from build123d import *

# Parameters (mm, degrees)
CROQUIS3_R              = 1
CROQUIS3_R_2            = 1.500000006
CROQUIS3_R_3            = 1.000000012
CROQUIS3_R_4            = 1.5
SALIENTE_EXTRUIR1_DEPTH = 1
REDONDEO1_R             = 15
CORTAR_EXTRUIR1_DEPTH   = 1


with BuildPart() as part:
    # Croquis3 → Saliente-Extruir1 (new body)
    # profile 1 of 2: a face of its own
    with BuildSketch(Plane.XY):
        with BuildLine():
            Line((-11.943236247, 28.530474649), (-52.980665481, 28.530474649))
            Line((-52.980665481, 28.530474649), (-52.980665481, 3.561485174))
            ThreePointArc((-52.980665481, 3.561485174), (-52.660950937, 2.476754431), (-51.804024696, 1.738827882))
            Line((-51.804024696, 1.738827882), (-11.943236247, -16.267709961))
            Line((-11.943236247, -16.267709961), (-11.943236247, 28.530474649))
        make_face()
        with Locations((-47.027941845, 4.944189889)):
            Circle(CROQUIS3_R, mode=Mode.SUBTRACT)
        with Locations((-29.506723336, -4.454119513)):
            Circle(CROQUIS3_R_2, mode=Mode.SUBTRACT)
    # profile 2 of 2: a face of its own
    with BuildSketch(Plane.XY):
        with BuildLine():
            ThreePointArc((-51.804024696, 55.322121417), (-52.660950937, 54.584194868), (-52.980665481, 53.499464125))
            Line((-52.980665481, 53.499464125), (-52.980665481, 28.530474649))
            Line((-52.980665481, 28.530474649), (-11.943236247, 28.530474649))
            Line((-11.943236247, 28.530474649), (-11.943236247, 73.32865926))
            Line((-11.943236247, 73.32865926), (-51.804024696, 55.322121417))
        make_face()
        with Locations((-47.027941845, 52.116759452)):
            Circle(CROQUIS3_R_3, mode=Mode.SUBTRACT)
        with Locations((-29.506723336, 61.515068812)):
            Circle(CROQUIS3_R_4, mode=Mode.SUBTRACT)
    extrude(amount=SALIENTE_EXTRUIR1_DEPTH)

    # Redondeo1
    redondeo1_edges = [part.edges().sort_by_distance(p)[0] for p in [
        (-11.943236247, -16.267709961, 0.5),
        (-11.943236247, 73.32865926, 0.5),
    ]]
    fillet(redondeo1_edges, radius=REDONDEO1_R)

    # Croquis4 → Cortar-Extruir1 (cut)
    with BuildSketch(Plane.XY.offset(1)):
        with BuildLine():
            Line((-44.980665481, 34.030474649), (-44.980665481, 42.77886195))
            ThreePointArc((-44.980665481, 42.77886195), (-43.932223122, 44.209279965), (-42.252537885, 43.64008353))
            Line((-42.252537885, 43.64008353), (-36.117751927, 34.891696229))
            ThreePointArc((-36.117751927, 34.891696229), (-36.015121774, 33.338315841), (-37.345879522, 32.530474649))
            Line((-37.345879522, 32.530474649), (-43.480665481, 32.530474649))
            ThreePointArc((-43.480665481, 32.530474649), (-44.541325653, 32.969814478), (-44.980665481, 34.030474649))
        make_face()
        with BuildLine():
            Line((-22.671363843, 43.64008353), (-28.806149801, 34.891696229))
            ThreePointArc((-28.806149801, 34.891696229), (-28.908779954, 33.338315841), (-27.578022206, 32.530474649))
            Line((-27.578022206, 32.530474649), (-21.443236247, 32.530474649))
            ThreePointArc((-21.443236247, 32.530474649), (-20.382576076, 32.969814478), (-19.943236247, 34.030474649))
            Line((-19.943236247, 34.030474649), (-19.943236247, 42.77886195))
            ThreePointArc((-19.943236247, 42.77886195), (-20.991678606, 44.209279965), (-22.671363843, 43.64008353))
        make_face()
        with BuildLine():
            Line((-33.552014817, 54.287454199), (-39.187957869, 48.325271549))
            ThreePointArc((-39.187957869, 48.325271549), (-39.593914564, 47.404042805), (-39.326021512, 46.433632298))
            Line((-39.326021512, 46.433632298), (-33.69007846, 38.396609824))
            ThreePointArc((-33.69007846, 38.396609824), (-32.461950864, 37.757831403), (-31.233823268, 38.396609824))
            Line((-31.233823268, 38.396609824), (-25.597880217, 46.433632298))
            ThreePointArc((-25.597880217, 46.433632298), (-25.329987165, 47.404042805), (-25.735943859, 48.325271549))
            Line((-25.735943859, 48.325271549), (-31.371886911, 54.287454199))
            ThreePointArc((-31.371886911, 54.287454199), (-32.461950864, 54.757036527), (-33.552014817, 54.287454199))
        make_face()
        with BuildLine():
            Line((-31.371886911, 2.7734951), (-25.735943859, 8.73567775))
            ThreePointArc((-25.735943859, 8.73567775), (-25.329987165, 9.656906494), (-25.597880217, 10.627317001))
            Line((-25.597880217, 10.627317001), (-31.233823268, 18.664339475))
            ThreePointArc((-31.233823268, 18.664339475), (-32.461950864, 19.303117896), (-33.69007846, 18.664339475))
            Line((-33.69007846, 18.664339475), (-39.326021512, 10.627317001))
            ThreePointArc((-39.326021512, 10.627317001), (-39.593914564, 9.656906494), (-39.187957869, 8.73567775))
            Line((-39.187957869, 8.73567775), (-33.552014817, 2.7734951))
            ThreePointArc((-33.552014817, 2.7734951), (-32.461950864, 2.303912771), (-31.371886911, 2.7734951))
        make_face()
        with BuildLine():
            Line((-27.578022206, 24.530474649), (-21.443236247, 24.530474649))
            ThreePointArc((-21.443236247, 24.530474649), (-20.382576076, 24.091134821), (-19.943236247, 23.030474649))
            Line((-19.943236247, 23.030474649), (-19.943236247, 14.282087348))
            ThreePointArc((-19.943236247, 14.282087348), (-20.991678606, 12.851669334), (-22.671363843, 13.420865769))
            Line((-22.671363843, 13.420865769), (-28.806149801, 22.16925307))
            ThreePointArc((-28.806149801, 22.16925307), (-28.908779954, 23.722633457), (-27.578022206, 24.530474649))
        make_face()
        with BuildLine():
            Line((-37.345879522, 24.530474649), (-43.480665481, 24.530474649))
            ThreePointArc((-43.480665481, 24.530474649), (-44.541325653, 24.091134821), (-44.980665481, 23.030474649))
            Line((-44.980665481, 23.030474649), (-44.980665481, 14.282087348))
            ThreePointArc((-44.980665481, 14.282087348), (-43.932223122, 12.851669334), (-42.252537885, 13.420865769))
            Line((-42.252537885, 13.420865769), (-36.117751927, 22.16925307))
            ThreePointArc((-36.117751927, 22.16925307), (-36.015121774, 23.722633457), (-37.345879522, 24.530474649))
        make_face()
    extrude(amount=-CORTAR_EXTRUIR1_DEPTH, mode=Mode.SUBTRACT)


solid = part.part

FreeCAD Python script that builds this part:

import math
import FreeCAD as App
import Part
import Sketcher
from FreeCAD import Vector
Q = App.Units.Quantity


def edges_at(feature, points):
    """Names of the edges that pass closest to the given points."""
    edges = feature.Shape.Edges
    near = lambda p: min(range(len(edges)), key=lambda i: edges[i].distToShape(Part.Vertex(*p))[0])
    return sorted({f"Edge{near(p) + 1}" for p in points})

doc = App.newDocument("Part")
params = doc.addObject("Spreadsheet::Sheet", "Params")
for row, (alias, value) in enumerate([
    ("sketch1_diameter", "3 mm"),
    ("sketch1_diameter2", "2 mm"),
    ("sketch1_diameter3", "3 mm"),
    ("sketch1_diameter4", "2 mm"),
    ("sketch1_radius", "2 mm"),
    ("pad1_length", "1 mm"),
    ("fillet_radius", "15 mm"),
    ("sketch2_radius", "1.5 mm"),
    ("pocket1_length", "1 mm"),
], start=1):
    params.set(f"A{row}", alias)
    params.set(f"B{row}", "=" + value)
    params.setAlias(f"B{row}", alias)

body = doc.addObject("PartDesign::Body", "Body")

# Sketch on XY plane
sketch1 = body.newObject("Sketcher::SketchObject", "Sketch")
sketch1.AttachmentSupport = (doc.getObject("XY_Plane"), [""])
sketch1.MapMode = "FlatFace"
sketch1.addGeometry(Part.LineSegment(Vector(-11.943236, -16.26771, 0), Vector(-11.943236, 73.328659, 0)), False)
sketch1.addGeometry(Part.LineSegment(Vector(-11.943236, 73.328659, 0), Vector(-51.804025, 55.322121, 0)), False)
sketch1.addGeometry(Part.ArcOfCircle(Part.Circle(Vector(-50.980665, 53.499464, 0), Vector(0, 0, 1), 2), math.radians(114.310389), math.radians(180)), False)
sketch1.addGeometry(Part.LineSegment(Vector(-52.980665, 53.499464, 0), Vector(-52.980665, 3.561485, 0)), False)
sketch1.addGeometry(Part.ArcOfCircle(Part.Circle(Vector(-50.980665, 3.561485, 0), Vector(0, 0, 1), 2), math.radians(-180), math.radians(-114.310389)), False)
sketch1.addGeometry(Part.LineSegment(Vector(-51.804025, 1.738828, 0), Vector(-11.943236, -16.26771, 0)), False)
sketch1.addGeometry(Part.Circle(Vector(-29.506723, -4.45412, 0), Vector(0, 0, 1), 1.5), False)
sketch1.addGeometry(Part.Circle(Vector(-47.027942, 4.94419, 0), Vector(0, 0, 1), 1), False)
sketch1.addGeometry(Part.Circle(Vector(-29.506723, 61.515069, 0), Vector(0, 0, 1), 1.5), False)
sketch1.addGeometry(Part.Circle(Vector(-47.027942, 52.116759, 0), Vector(0, 0, 1), 1), False)
sketch1.addConstraint(Sketcher.Constraint("Coincident", 0, 2, 1, 1))
sketch1.addConstraint(Sketcher.Constraint("Coincident", 1, 2, 2, 1))
sketch1.addConstraint(Sketcher.Constraint("Coincident", 2, 2, 3, 1))
sketch1.addConstraint(Sketcher.Constraint("Coincident", 3, 2, 4, 1))
sketch1.addConstraint(Sketcher.Constraint("Coincident", 4, 2, 5, 1))
sketch1.addConstraint(Sketcher.Constraint("Coincident", 5, 2, 0, 1))
sketch1.addConstraint(Sketcher.Constraint("Vertical", 0))
sketch1.addConstraint(Sketcher.Constraint("Vertical", 3))
sketch1.addConstraint(Sketcher.Constraint("Diameter", 6, Q("3 mm")))
sketch1.addConstraint(Sketcher.Constraint("Diameter", 7, Q("2 mm")))
sketch1.addConstraint(Sketcher.Constraint("Diameter", 8, Q("3 mm")))
sketch1.addConstraint(Sketcher.Constraint("Diameter", 9, Q("2 mm")))
sketch1.addConstraint(Sketcher.Constraint("Radius", 2, Q("2 mm")))
sketch1.addConstraint(Sketcher.Constraint("Radius", 4, Q("2 mm")))
sketch1.addConstraint(Sketcher.Constraint("DistanceY", 0, 1, 0, 2, Q("89.596369 mm")))
sketch1.addConstraint(Sketcher.Constraint("DistanceY", 3, 2, 3, 1, Q("49.937979 mm")))
sketch1.addConstraint(Sketcher.Constraint("DistanceY", 9, 3, 0, 2, Q("21.2119 mm")))
sketch1.addConstraint(Sketcher.Constraint("DistanceX", 1, 2, 8, 3, Q("22.297301 mm")))
sketch1.addConstraint(Sketcher.Constraint("DistanceX", 4, 2, 6, 3, Q("22.297301 mm")))
sketch1.addConstraint(Sketcher.Constraint("DistanceY", 5, 2, 7, 3, Q("21.2119 mm")))
sketch1.addConstraint(Sketcher.Constraint("DistanceY", 6, 3, -1, 1, Q("4.45412 mm")))
sketch1.addConstraint(Sketcher.Constraint("DistanceX", 7, 3, -1, 1, Q("47.027942 mm")))
sketch1.addConstraint(Sketcher.Constraint("DistanceY", -1, 1, 7, 3, Q("4.94419 mm")))
sketch1.addConstraint(Sketcher.Constraint("DistanceY", -1, 1, 8, 3, Q("61.515069 mm")))
sketch1.addConstraint(Sketcher.Constraint("DistanceX", 9, 3, -1, 1, Q("47.027942 mm")))
sketch1.addConstraint(Sketcher.Constraint("DistanceY", -1, 1, 1, 2, Q("55.322121 mm")))
sketch1.addConstraint(Sketcher.Constraint("DistanceY", 4, 3, 2, 3, Q("49.937979 mm")))
sketch1.addConstraint(Sketcher.Constraint("DistanceX", 7, 3, 6, 3, Q("17.521219 mm")))
sketch1.addConstraint(Sketcher.Constraint("DistanceX", 7, 3, 8, 3, Q("17.521219 mm")))
sketch1.addConstraint(Sketcher.Constraint("DistanceX", 2, 3, 0, 2, Q("39.037429 mm")))
sketch1.addConstraint(Sketcher.Constraint("DistanceX", 1, 2, 2, 3, Q("0.823359 mm")))
sketch1.addConstraint(Sketcher.Constraint("DistanceY", -1, 1, 2, 2, Q("53.499464 mm")))
sketch1.setExpression("Constraints[8]", "Params.sketch1_diameter")
sketch1.setExpression("Constraints[9]", "Params.sketch1_diameter2")
sketch1.setExpression("Constraints[10]", "Params.sketch1_diameter3")
sketch1.setExpression("Constraints[11]", "Params.sketch1_diameter4")
sketch1.setExpression("Constraints[12]", "Params.sketch1_radius")
pad1 = body.newObject("PartDesign::Pad", "Pad")
pad1.Profile = sketch1
pad1.setExpression("Length", "Params.pad1_length")
doc.recompute()

fillet = body.newObject("PartDesign::Fillet", "Fillet")
fillet.Base = (pad1, edges_at(pad1, [(-11.943, -16.268, 0.5), (-11.943, 73.329, 0.5)]))
fillet.setExpression("Radius", "Params.fillet_radius")

# Sketch on XY plane
sketch2 = body.newObject("Sketcher::SketchObject", "Sketch001")
sketch2.AttachmentSupport = (doc.getObject("XY_Plane"), [""])
sketch2.MapMode = "FlatFace"
sketch2.AttachmentOffset = App.Placement(Vector(0, 0, 1), App.Rotation())
sketch2.addGeometry(Part.LineSegment(Vector(-44.980665, 42.778862, 0), Vector(-44.980665, 34.030475, 0)), False)
sketch2.addGeometry(Part.ArcOfCircle(Part.Circle(Vector(-43.480665, 34.030475, 0), Vector(0, 0, 1), 1.5), math.radians(-180), math.radians(-90)), False)
sketch2.addGeometry(Part.LineSegment(Vector(-43.480665, 32.530475, 0), Vector(-37.34588, 32.530475, 0)), False)
sketch2.addGeometry(Part.ArcOfCircle(Part.Circle(Vector(-37.34588, 34.030475, 0), Vector(0, 0, 1), 1.5), math.radians(-90), math.radians(35.039968)), False)
sketch2.addGeometry(Part.LineSegment(Vector(-36.117752, 34.891696, 0), Vector(-42.252538, 43.640084, 0)), False)
sketch2.addGeometry(Part.ArcOfCircle(Part.Circle(Vector(-43.480665, 42.778862, 0), Vector(0, 0, 1), 1.5), math.radians(35.039968), math.radians(180)), False)
sketch2.addGeometry(Part.LineSegment(Vector(-22.671364, 43.640084, 0), Vector(-28.80615, 34.891696, 0)), False)
sketch2.addGeometry(Part.ArcOfCircle(Part.Circle(Vector(-27.578022, 34.030475, 0), Vector(0, 0, 1), 1.5), math.radians(144.960032), math.radians(270)), False)
sketch2.addGeometry(Part.LineSegment(Vector(-27.578022, 32.530475, 0), Vector(-21.443236, 32.530475, 0)), False)
sketch2.addGeometry(Part.ArcOfCircle(Part.Circle(Vector(-21.443236, 34.030475, 0), Vector(0, 0, 1), 1.5), math.radians(-90), math.radians(0)), False)
sketch2.addGeometry(Part.LineSegment(Vector(-19.943236, 34.030475, 0), Vector(-19.943236, 42.778862, 0)), False)
sketch2.addGeometry(Part.ArcOfCircle(Part.Circle(Vector(-21.443236, 42.778862, 0), Vector(0, 0, 1), 1.5), math.radians(0), math.radians(144.960032)), False)
sketch2.addGeometry(Part.LineSegment(Vector(-33.552015, 54.287454, 0), Vector(-39.187958, 48.325272, 0)), False)
sketch2.addGeometry(Part.ArcOfCircle(Part.Circle(Vector(-38.097894, 47.294854, 0), Vector(0, 0, 1), 1.5), math.radians(136.611228), math.radians(215.039968)), False)
sketch2.addGeometry(Part.LineSegment(Vector(-39.326022, 46.433632, 0), Vector(-33.690078, 38.39661, 0)), False)
sketch2.addGeometry(Part.ArcOfCircle(Part.Circle(Vector(-32.461951, 39.257831, 0), Vector(0, 0, 1), 1.5), math.radians(-144.960032), math.radians(-35.039968)), False)
sketch2.addGeometry(Part.LineSegment(Vector(-31.233823, 38.39661, 0), Vector(-25.59788, 46.433632, 0)), False)
sketch2.addGeometry(Part.ArcOfCircle(Part.Circle(Vector(-26.826008, 47.294854, 0), Vector(0, 0, 1), 1.5), math.radians(-35.039968), math.radians(43.388772)), False)
sketch2.addGeometry(Part.LineSegment(Vector(-25.735944, 48.325272, 0), Vector(-31.371887, 54.287454, 0)), False)
sketch2.addGeometry(Part.ArcOfCircle(Part.Circle(Vector(-32.461951, 53.257037, 0), Vector(0, 0, 1), 1.5), math.radians(43.388772), math.radians(136.611228)), False)
sketch2.addGeometry(Part.LineSegment(Vector(-31.371887, 2.773495, 0), Vector(-25.735944, 8.735678, 0)), False)
sketch2.addGeometry(Part.ArcOfCircle(Part.Circle(Vector(-26.826008, 9.766095, 0), Vector(0, 0, 1), 1.5), math.radians(-43.388772), math.radians(35.039968)), False)
sketch2.addGeometry(Part.LineSegment(Vector(-25.59788, 10.627317, 0), Vector(-31.233823, 18.664339, 0)), False)
sketch2.addGeometry(Part.ArcOfCircle(Part.Circle(Vector(-32.461951, 17.803118, 0), Vector(0, 0, 1), 1.5), math.radians(35.039968), math.radians(144.960032)), False)
sketch2.addGeometry(Part.LineSegment(Vector(-33.690078, 18.664339, 0), Vector(-39.326022, 10.627317, 0)), False)
sketch2.addGeometry(Part.ArcOfCircle(Part.Circle(Vector(-38.097894, 9.766095, 0), Vector(0, 0, 1), 1.5), math.radians(144.960032), math.radians(223.388772)), False)
sketch2.addGeometry(Part.LineSegment(Vector(-39.187958, 8.735678, 0), Vector(-33.552015, 2.773495, 0)), False)
sketch2.addGeometry(Part.ArcOfCircle(Part.Circle(Vector(-32.461951, 3.803913, 0), Vector(0, 0, 1), 1.5), math.radians(-136.611228), math.radians(-43.388772)), False)
sketch2.addGeometry(Part.LineSegment(Vector(-21.443236, 24.530475, 0), Vector(-27.578022, 24.530475, 0)), False)
sketch2.addGeometry(Part.ArcOfCircle(Part.Circle(Vector(-27.578022, 23.030475, 0), Vector(0, 0, 1), 1.5), math.radians(90), math.radians(215.039968)), False)
sketch2.addGeometry(Part.LineSegment(Vector(-28.80615, 22.169253, 0), Vector(-22.671364, 13.420866, 0)), False)
sketch2.addGeometry(Part.ArcOfCircle(Part.Circle(Vector(-21.443236, 14.282087, 0), Vector(0, 0, 1), 1.5), math.radians(-144.960032), math.radians(0)), False)
sketch2.addGeometry(Part.LineSegment(Vector(-19.943236, 14.282087, 0), Vector(-19.943236, 23.030475, 0)), False)
sketch2.addGeometry(Part.ArcOfCircle(Part.Circle(Vector(-21.443236, 23.030475, 0), Vector(0, 0, 1), 1.5), math.radians(0), math.radians(90)), False)
sketch2.addGeometry(Part.LineSegment(Vector(-37.34588, 24.530475, 0), Vector(-43.480665, 24.530475, 0)), False)
sketch2.addGeometry(Part.ArcOfCircle(Part.Circle(Vector(-43.480665, 23.030475, 0), Vector(0, 0, 1), 1.5), math.radians(90), math.radians(180)), False)
sketch2.addGeometry(Part.LineSegment(Vector(-44.980665, 23.030475, 0), Vector(-44.980665, 14.282087, 0)), False)
sketch2.addGeometry(Part.ArcOfCircle(Part.Circle(Vector(-43.480665, 14.282087, 0), Vector(0, 0, 1), 1.5), math.radians(-180), math.radians(-35.039968)), False)
sketch2.addGeometry(Part.LineSegment(Vector(-42.252538, 13.420866, 0), Vector(-36.117752, 22.169253, 0)), False)
sketch2.addGeometry(Part.ArcOfCircle(Part.Circle(Vector(-37.34588, 23.030475, 0), Vector(0, 0, 1), 1.5), math.radians(-35.039968), math.radians(90)), False)
sketch2.addConstraint(Sketcher.Constraint("Tangent", 0, 2, 1, 1))
sketch2.addConstraint(Sketcher.Constraint("Tangent", 1, 2, 2, 1))
sketch2.addConstraint(Sketcher.Constraint("Tangent", 2, 2, 3, 1))
sketch2.addConstraint(Sketcher.Constraint("Tangent", 3, 2, 4, 1))
sketch2.addConstraint(Sketcher.Constraint("Tangent", 4, 2, 5, 1))
sketch2.addConstraint(Sketcher.Constraint("Tangent", 5, 2, 0, 1))
sketch2.addConstraint(Sketcher.Constraint("Tangent", 6, 2, 7, 1))
sketch2.addConstraint(Sketcher.Constraint("Tangent", 7, 2, 8, 1))
sketch2.addConstraint(Sketcher.Constraint("Tangent", 8, 2, 9, 1))
sketch2.addConstraint(Sketcher.Constraint("Tangent", 9, 2, 10, 1))
sketch2.addConstraint(Sketcher.Constraint("Tangent", 10, 2, 11, 1))
sketch2.addConstraint(Sketcher.Constraint("Tangent", 11, 2, 6, 1))
sketch2.addConstraint(Sketcher.Constraint("Tangent", 12, 2, 13, 1))
sketch2.addConstraint(Sketcher.Constraint("Tangent", 13, 2, 14, 1))
sketch2.addConstraint(Sketcher.Constraint("Tangent", 14, 2, 15, 1))
sketch2.addConstraint(Sketcher.Constraint("Tangent", 15, 2, 16, 1))
sketch2.addConstraint(Sketcher.Constraint("Tangent", 16, 2, 17, 1))
sketch2.addConstraint(Sketcher.Constraint("Tangent", 17, 2, 18, 1))
sketch2.addConstraint(Sketcher.Constraint("Tangent", 18, 2, 19, 1))
sketch2.addConstraint(Sketcher.Constraint("Tangent", 19, 2, 12, 1))
sketch2.addConstraint(Sketcher.Constraint("Tangent", 20, 2, 21, 1))
sketch2.addConstraint(Sketcher.Constraint("Tangent", 21, 2, 22, 1))
sketch2.addConstraint(Sketcher.Constraint("Tangent", 22, 2, 23, 1))
sketch2.addConstraint(Sketcher.Constraint("Tangent", 23, 2, 24, 1))
sketch2.addConstraint(Sketcher.Constraint("Tangent", 24, 2, 25, 1))
sketch2.addConstraint(Sketcher.Constraint("Tangent", 25, 2, 26, 1))
sketch2.addConstraint(Sketcher.Constraint("Tangent", 26, 2, 27, 1))
sketch2.addConstraint(Sketcher.Constraint("Tangent", 27, 2, 20, 1))
sketch2.addConstraint(Sketcher.Constraint("Tangent", 28, 2, 29, 1))
sketch2.addConstraint(Sketcher.Constraint("Tangent", 29, 2, 30, 1))
sketch2.addConstraint(Sketcher.Constraint("Tangent", 30, 2, 31, 1))
sketch2.addConstraint(Sketcher.Constraint("Tangent", 31, 2, 32, 1))
sketch2.addConstraint(Sketcher.Constraint("Tangent", 32, 2, 33, 1))
sketch2.addConstraint(Sketcher.Constraint("Tangent", 33, 2, 28, 1))
sketch2.addConstraint(Sketcher.Constraint("Tangent", 34, 2, 35, 1))
sketch2.addConstraint(Sketcher.Constraint("Tangent", 35, 2, 36, 1))
sketch2.addConstraint(Sketcher.Constraint("Tangent", 36, 2, 37, 1))
sketch2.addConstraint(Sketcher.Constraint("Tangent", 37, 2, 38, 1))
sketch2.addConstraint(Sketcher.Constraint("Tangent", 38, 2, 39, 1))
sketch2.addConstraint(Sketcher.Constraint("Tangent", 39, 2, 34, 1))
sketch2.addConstraint(Sketcher.Constraint("Vertical", 0))
sketch2.addConstraint(Sketcher.Constraint("Horizontal", 2))
sketch2.addConstraint(Sketcher.Constraint("Horizontal", 8))
sketch2.addConstraint(Sketcher.Constraint("Vertical", 10))
sketch2.addConstraint(Sketcher.Constraint("Horizontal", 28))
sketch2.addConstraint(Sketcher.Constraint("Vertical", 32))
sketch2.addConstraint(Sketcher.Constraint("Horizontal", 34))
sketch2.addConstraint(Sketcher.Constraint("Vertical", 36))
sketch2.addConstraint(Sketcher.Constraint("Equal", 1, 3))
sketch2.addConstraint(Sketcher.Constraint("Equal", 3, 5))
sketch2.addConstraint(Sketcher.Constraint("Equal", 5, 7))
sketch2.addConstraint(Sketcher.Constraint("Equal", 7, 9))
sketch2.addConstraint(Sketcher.Constraint("Equal", 9, 11))
sketch2.addConstraint(Sketcher.Constraint("Equal", 11, 13))
sketch2.addConstraint(Sketcher.Constraint("Equal", 13, 15))
sketch2.addConstraint(Sketcher.Constraint("Equal", 15, 17))
sketch2.addConstraint(Sketcher.Constraint("Equal", 17, 19))
sketch2.addConstraint(Sketcher.Constraint("Equal", 19, 21))
sketch2.addConstraint(Sketcher.Constraint("Equal", 21, 23))
sketch2.addConstraint(Sketcher.Constraint("Equal", 23, 25))
sketch2.addConstraint(Sketcher.Constraint("Equal", 25, 27))
sketch2.addConstraint(Sketcher.Constraint("Equal", 27, 29))
sketch2.addConstraint(Sketcher.Constraint("Equal", 29, 31))
sketch2.addConstraint(Sketcher.Constraint("Equal", 31, 33))
sketch2.addConstraint(Sketcher.Constraint("Equal", 33, 35))
sketch2.addConstraint(Sketcher.Constraint("Equal", 35, 37))
sketch2.addConstraint(Sketcher.Constraint("Equal", 37, 39))
sketch2.addConstraint(Sketcher.Constraint("Parallel", 4, 14))
sketch2.addConstraint(Sketcher.Constraint("Parallel", 6, 16))
sketch2.addConstraint(Sketcher.Constraint("Parallel", 12, 20))
sketch2.addConstraint(Sketcher.Constraint("Parallel", 14, 22))
sketch2.addConstraint(Sketcher.Constraint("Parallel", 16, 24))
sketch2.addConstraint(Sketcher.Constraint("Parallel", 18, 26))
sketch2.addConstraint(Sketcher.Constraint("Parallel", 22, 30))
sketch2.addConstraint(Sketcher.Constraint("Parallel", 24, 38))
sketch2.addConstraint(Sketcher.Constraint("Horizontal", 3, 3, 7, 3))
sketch2.addConstraint(Sketcher.Constraint("Horizontal", 5, 3, 11, 3))
sketch2.addConstraint(Sketcher.Constraint("Horizontal", 13, 3, 17, 3))
sketch2.addConstraint(Sketcher.Constraint("Horizontal", 21, 3, 25, 3))
sketch2.addConstraint(Sketcher.Constraint("Horizontal", 33, 3, 35, 3))
sketch2.addConstraint(Sketcher.Constraint("Horizontal", 31, 3, 37, 3))
sketch2.addConstraint(Sketcher.Constraint("Horizontal", 3, 2, 6, 2))
sketch2.addConstraint(Sketcher.Constraint("Horizontal", 12, 2, 17, 2))
sketch2.addConstraint(Sketcher.Constraint("Vertical", 17, 3, 21, 3))
sketch2.addConstraint(Sketcher.Constraint("Vertical", 19, 3, 23, 3))
sketch2.addConstraint(Sketcher.Constraint("Vertical", 7, 3, 29, 3))
sketch2.addConstraint(Sketcher.Constraint("Vertical", 11, 3, 31, 3))
sketch2.addConstraint(Sketcher.Constraint("Vertical", 5, 3, 35, 3))
sketch2.addConstraint(Sketcher.Constraint("Radius", 1, Q("1.5 mm")))
sketch2.addConstraint(Sketcher.Constraint("DistanceY", 29, 3, 7, 3, Q("11 mm")))
sketch2.addConstraint(Sketcher.Constraint("DistanceX", 3, 2, 15, 3, Q("3.655801 mm")))
sketch2.addConstraint(Sketcher.Constraint("DistanceX", 15, 3, 6, 2, Q("3.655801 mm")))
sketch2.addConstraint(Sketcher.Constraint("DistanceY", 17, 3, 18, 2, Q("6.9926 mm")))
sketch2.addConstraint(Sketcher.Constraint("DistanceY", 21, 2, 23, 3, Q("7.175801 mm")))
sketch2.addConstraint(Sketcher.Constraint("Distance", 4, Q("10.685031 mm")))
sketch2.addConstraint(Sketcher.Constraint("Distance", 14, Q("9.81619 mm")))
sketch2.addConstraint(Sketcher.Constraint("DistanceX", 3, 3, -1, 1, Q("37.34588 mm")))
sketch2.addConstraint(Sketcher.Constraint("DistanceY", -1, 1, 5, 3, Q("42.778862 mm")))
sketch2.addConstraint(Sketcher.Constraint("DistanceY", -1, 1, 15, 3, Q("39.257831 mm")))
sketch2.addConstraint(Sketcher.Constraint("DistanceY", -1, 1, 22, 2, Q("18.664339 mm")))
sketch2.setExpression("Constraints[88]", "Params.sketch2_radius")
pocket1 = body.newObject("PartDesign::Pocket", "Pocket")
pocket1.Profile = sketch2
pocket1.setExpression("Length", "Params.pocket1_length")

doc.recompute()
